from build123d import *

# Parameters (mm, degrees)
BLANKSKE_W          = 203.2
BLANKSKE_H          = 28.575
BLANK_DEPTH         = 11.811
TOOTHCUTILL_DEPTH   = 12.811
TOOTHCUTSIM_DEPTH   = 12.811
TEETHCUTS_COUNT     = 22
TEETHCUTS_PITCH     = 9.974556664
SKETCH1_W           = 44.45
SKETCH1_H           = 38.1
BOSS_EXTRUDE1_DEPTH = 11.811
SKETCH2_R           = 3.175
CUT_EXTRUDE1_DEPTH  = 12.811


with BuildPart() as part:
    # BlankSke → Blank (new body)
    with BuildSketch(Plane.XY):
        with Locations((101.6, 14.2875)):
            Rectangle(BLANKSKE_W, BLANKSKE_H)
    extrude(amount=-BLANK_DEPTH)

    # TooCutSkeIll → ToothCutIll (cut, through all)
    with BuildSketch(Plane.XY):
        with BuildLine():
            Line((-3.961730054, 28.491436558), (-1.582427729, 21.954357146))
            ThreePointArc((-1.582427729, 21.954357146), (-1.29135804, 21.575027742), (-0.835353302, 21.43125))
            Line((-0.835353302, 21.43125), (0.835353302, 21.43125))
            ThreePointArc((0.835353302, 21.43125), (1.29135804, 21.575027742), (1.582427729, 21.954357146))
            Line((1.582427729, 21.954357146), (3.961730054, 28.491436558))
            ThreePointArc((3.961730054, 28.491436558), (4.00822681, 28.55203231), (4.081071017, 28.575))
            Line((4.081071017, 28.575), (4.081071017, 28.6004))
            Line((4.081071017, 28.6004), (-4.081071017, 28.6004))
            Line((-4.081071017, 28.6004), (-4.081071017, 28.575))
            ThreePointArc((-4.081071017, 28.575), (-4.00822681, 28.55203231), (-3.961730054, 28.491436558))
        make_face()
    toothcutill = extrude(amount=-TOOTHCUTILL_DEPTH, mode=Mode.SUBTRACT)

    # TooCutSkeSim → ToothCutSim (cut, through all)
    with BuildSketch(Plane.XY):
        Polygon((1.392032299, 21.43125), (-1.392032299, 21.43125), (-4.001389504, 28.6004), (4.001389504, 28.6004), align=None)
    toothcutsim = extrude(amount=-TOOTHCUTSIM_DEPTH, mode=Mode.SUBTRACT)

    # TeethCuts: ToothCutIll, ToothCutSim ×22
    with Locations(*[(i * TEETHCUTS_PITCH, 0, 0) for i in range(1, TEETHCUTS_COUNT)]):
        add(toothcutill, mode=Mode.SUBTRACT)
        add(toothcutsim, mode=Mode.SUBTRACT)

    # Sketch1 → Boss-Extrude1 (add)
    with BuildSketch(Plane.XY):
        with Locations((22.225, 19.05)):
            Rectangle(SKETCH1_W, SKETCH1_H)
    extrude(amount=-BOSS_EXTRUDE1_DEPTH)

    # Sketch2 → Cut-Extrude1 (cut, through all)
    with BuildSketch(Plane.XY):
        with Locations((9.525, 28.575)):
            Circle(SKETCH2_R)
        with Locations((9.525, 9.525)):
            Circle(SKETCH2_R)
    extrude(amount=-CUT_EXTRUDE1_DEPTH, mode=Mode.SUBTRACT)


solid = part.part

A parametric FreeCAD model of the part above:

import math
import FreeCAD as App
import Part
import Sketcher

V = App.Vector
Q = App.Units.Quantity


def add_polygon(sketch, points):
    """Adds a closed chain of lines whose ends are joined by coincident constraints."""
    first, n = sketch.GeometryCount, len(points)
    for a, b in zip(points, points[1:] + points[:1]):
        sketch.addGeometry(Part.LineSegment(App.Vector(*a, 0), App.Vector(*b, 0)), False)
    for i in range(n):
        sketch.addConstraint(Sketcher.Constraint("Coincident", first + i, 2, first + (i + 1) % n, 1))

doc = App.newDocument("Part")
body = doc.addObject("PartDesign::Body", "Body")

# Sketch on XY plane
sketch1 = body.newObject("Sketcher::SketchObject", "Sketch")
sketch1.AttachmentSupport = (doc.getObject("XY_Plane"), [""])
sketch1.MapMode = "FlatFace"
add_polygon(sketch1, [(0, 28.575), (0, 0), (203.2, 0), (203.2, 28.575)])  # lines 0-3
sketch1.addConstraint(Sketcher.Constraint("Vertical", 0))
sketch1.addConstraint(Sketcher.Constraint("Horizontal", 1))
sketch1.addConstraint(Sketcher.Constraint("Vertical", 2))
sketch1.addConstraint(Sketcher.Constraint("Horizontal", 3))
sketch1.addConstraint(Sketcher.Constraint("Coincident", 0, 2, -1, 1))
sketch1.addConstraint(Sketcher.Constraint("DistanceX", 1, 1, 1, 2, Q("8 in")))
sketch1.addConstraint(Sketcher.Constraint("DistanceY", 0, 2, 0, 1, Q("1.125 in")))
pad1 = body.newObject("PartDesign::Pad", "Pad")
pad1.Profile = sketch1
pad1.Length = Q("0.465 in")
pad1.Reversed = True

# Sketch on XY plane
sketch2 = body.newObject("Sketcher::SketchObject", "Sketch001")
sketch2.AttachmentSupport = (doc.getObject("XY_Plane"), [""])
sketch2.MapMode = "FlatFace"
sketch2.addGeometry(Part.LineSegment(V(-3.96173, 28.491437, 0), V(-1.582428, 21.954357, 0)), False)
sketch2.addGeometry(Part.ArcOfCircle(Part.Circle(V(-0.835353, 22.22627, 0), V(0, 0, 1), 0.79502), math.radians(-160), math.radians(-90)), False)
sketch2.addGeometry(Part.LineSegment(V(-0.835353, 21.43125, 0), V(0.835353, 21.43125, 0)), False)
sketch2.addGeometry(Part.ArcOfCircle(Part.Circle(V(0.835353, 22.22627, 0), V(0, 0, 1), 0.79502), math.radians(-90), math.radians(-20)), False)
sketch2.addGeometry(Part.LineSegment(V(1.582428, 21.954357, 0), V(3.96173, 28.491437, 0)), False)
sketch2.addGeometry(Part.ArcOfCircle(Part.Circle(V(4.081071, 28.448, 0), V(0, 0, 1), 0.127), math.radians(90), math.radians(160)), False)
sketch2.addGeometry(Part.LineSegment(V(4.081071, 28.575, 0), V(4.081071, 28.6004, 0)), False)
sketch2.addGeometry(Part.LineSegment(V(4.081071, 28.6004, 0), V(-4.081071, 28.6004, 0)), False)
sketch2.addGeometry(Part.LineSegment(V(-4.081071, 28.6004, 0), V(-4.081071, 28.575, 0)), False)
sketch2.addGeometry(Part.ArcOfCircle(Part.Circle(V(-4.081071, 28.448, 0), V(0, 0, 1), 0.127), math.radians(20), math.radians(90)), False)
sketch2.addConstraint(Sketcher.Constraint("Tangent", 0, 2, 1, 1))
sketch2.addConstraint(Sketcher.Constraint("Tangent", 1, 2, 2, 1))
sketch2.addConstraint(Sketcher.Constraint("Tangent", 2, 2, 3, 1))
sketch2.addConstraint(Sketcher.Constraint("Tangent", 3, 2, 4, 1))
sketch2.addConstraint(Sketcher.Constraint("Tangent", 4, 2, 5, 2))
sketch2.addConstraint(Sketcher.Constraint("Coincident", 5, 1, 6, 1))
sketch2.addConstraint(Sketcher.Constraint("Coincident", 6, 2, 7, 1))
sketch2.addConstraint(Sketcher.Constraint("Coincident", 7, 2, 8, 1))
sketch2.addConstraint(Sketcher.Constraint("Coincident", 8, 2, 9, 2))
sketch2.addConstraint(Sketcher.Constraint("Tangent", 9, 1, 0, 1))
sketch2.addConstraint(Sketcher.Constraint("Horizontal", 2))
sketch2.addConstraint(Sketcher.Constraint("Vertical", 6))
sketch2.addConstraint(Sketcher.Constraint("Horizontal", 7))
sketch2.addConstraint(Sketcher.Constraint("Vertical", 8))
sketch2.addConstraint(Sketcher.Constraint("Equal", 1, 3))
sketch2.addConstraint(Sketcher.Constraint("Equal", 5, 9))
sketch2.addConstraint(Sketcher.Constraint("Symmetric", 5, 3, 9, 3, -2))
sketch2.addConstraint(Sketcher.Constraint("Horizontal", 0, 2, 3, 2))
sketch2.addConstraint(Sketcher.Constraint("Vertical", 9, 3, 7, 2))
sketch2.addConstraint(Sketcher.Constraint("Angle", 0, Q("-70 deg")))
sketch2.addConstraint(Sketcher.Constraint("Radius", 5, Q("0.005 in")))
sketch2.addConstraint(Sketcher.Constraint("Radius", 1, Q("0.0313 in")))
sketch2.addConstraint(Sketcher.Constraint("DistanceY", 6, 1, 6, 2, Q("0.001 in")))
sketch2.addConstraint(Sketcher.Constraint("DistanceY", -1, 1, 5, 3, Q("1.12 in")))
sketch2.addConstraint(Sketcher.Constraint("DistanceY", -1, 1, 1, 2, Q("0.84375 in")))
sketch2.addConstraint(Sketcher.Constraint("DistanceX", 0, 2, 5, 3, Q("5.663499 mm")))
sketch2.addConstraint(Sketcher.Constraint("DistanceX", 7, 2, 7, 1, Q("8.162142 mm")))
pocket1 = body.newObject("PartDesign::Pocket", "Pocket")
pocket1.Profile = sketch2
pocket1.Type = "ThroughAll"

# Sketch on XY plane
sketch3 = body.newObject("Sketcher::SketchObject", "Sketch002")
sketch3.AttachmentSupport = (doc.getObject("XY_Plane"), [""])
sketch3.MapMode = "FlatFace"
add_polygon(sketch3, [(-1.392032, 21.43125), (1.392032, 21.43125), (4.00139, 28.6004), (-4.00139, 28.6004)])  # lines 0-3
sketch3.addConstraint(Sketcher.Constraint("Horizontal", 0))
sketch3.addConstraint(Sketcher.Constraint("Horizontal", 2))
sketch3.addConstraint(Sketcher.Constraint("Equal", 1, 3))
sketch3.addConstraint(Sketcher.Constraint("Angle", 1, Q("70 deg")))
sketch3.addConstraint(Sketcher.Constraint("DistanceY", -1, 1, 0, 2, Q("0.84375 in")))
sketch3.addConstraint(Sketcher.Constraint("DistanceY", -1, 1, 1, 2, Q("1.126 in")))
sketch3.addConstraint(Sketcher.Constraint("DistanceX", 2, 2, 2, 1, Q("8.002779 mm")))
sketch3.addConstraint(Sketcher.Constraint("DistanceX", -1, 1, 1, 2, Q("4.00139 mm")))
pocket2 = body.newObject("PartDesign::Pocket", "Pocket001")
pocket2.Profile = sketch3
pocket2.Type = "ThroughAll"
doc.recompute()

linearpattern = body.newObject("PartDesign::LinearPattern", "LinearPattern")
linearpattern.Originals = [pocket1, pocket2]
linearpattern.Direction = (doc.getObject("X_Axis"), [""])
linearpattern.Mode = "offset"
linearpattern.Offset = 9.974557
linearpattern.Occurrences = 22
body.Tip = linearpattern

# Sketch on XY plane
sketch4 = body.newObject("Sketcher::SketchObject", "Sketch003")
sketch4.AttachmentSupport = (doc.getObject("XY_Plane"), [""])
sketch4.MapMode = "FlatFace"
add_polygon(sketch4, [(0, 38.1), (0, 0), (44.45, 0), (44.45, 38.1)])  # lines 0-3
sketch4.addConstraint(Sketcher.Constraint("Vertical", 0))
sketch4.addConstraint(Sketcher.Constraint("Horizontal", 1))
sketch4.addConstraint(Sketcher.Constraint("Vertical", 2))
sketch4.addConstraint(Sketcher.Constraint("Horizontal", 3))
sketch4.addConstraint(Sketcher.Constraint("Coincident", 0, 2, -1, 1))
sketch4.addConstraint(Sketcher.Constraint("DistanceY", 0, 2, 0, 1, Q("1.5 in")))
sketch4.addConstraint(Sketcher.Constraint("DistanceX", 1, 1, 1, 2, Q("1.75 in")))
pad2 = body.newObject("PartDesign::Pad", "Pad001")
pad2.Profile = sketch4
pad2.Length = Q("0.465 in")
pad2.Reversed = True

# Sketch on XY plane
sketch5 = body.newObject("Sketcher::SketchObject", "Sketch004")
sketch5.AttachmentSupport = (doc.getObject("XY_Plane"), [""])
sketch5.MapMode = "FlatFace"
sketch5.addGeometry(Part.Circle(V(9.525, 28.575, 0), V(0, 0, 1), 3.175), False)
sketch5.addGeometry(Part.Circle(V(9.525, 9.525, 0), V(0, 0, 1), 3.175), False)
sketch5.addConstraint(Sketcher.Constraint("Equal", 0, 1))
sketch5.addConstraint(Sketcher.Constraint("Vertical", 0, 3, 1, 3))
sketch5.addConstraint(Sketcher.Constraint("Diameter", 0, Q("0.25 in")))
sketch5.addConstraint(Sketcher.Constraint("DistanceY", 1, 3, 0, 3, Q("0.75 in")))
sketch5.addConstraint(Sketcher.Constraint("DistanceX", -1, 1, 0, 3, Q("0.375 in")))
sketch5.addConstraint(Sketcher.Constraint("DistanceY", -1, 1, 0, 3, Q("1.125 in")))
pocket3 = body.newObject("PartDesign::Pocket", "Pocket002")
pocket3.Profile = sketch5
pocket3.Type = "ThroughAll"

doc.recompute()
